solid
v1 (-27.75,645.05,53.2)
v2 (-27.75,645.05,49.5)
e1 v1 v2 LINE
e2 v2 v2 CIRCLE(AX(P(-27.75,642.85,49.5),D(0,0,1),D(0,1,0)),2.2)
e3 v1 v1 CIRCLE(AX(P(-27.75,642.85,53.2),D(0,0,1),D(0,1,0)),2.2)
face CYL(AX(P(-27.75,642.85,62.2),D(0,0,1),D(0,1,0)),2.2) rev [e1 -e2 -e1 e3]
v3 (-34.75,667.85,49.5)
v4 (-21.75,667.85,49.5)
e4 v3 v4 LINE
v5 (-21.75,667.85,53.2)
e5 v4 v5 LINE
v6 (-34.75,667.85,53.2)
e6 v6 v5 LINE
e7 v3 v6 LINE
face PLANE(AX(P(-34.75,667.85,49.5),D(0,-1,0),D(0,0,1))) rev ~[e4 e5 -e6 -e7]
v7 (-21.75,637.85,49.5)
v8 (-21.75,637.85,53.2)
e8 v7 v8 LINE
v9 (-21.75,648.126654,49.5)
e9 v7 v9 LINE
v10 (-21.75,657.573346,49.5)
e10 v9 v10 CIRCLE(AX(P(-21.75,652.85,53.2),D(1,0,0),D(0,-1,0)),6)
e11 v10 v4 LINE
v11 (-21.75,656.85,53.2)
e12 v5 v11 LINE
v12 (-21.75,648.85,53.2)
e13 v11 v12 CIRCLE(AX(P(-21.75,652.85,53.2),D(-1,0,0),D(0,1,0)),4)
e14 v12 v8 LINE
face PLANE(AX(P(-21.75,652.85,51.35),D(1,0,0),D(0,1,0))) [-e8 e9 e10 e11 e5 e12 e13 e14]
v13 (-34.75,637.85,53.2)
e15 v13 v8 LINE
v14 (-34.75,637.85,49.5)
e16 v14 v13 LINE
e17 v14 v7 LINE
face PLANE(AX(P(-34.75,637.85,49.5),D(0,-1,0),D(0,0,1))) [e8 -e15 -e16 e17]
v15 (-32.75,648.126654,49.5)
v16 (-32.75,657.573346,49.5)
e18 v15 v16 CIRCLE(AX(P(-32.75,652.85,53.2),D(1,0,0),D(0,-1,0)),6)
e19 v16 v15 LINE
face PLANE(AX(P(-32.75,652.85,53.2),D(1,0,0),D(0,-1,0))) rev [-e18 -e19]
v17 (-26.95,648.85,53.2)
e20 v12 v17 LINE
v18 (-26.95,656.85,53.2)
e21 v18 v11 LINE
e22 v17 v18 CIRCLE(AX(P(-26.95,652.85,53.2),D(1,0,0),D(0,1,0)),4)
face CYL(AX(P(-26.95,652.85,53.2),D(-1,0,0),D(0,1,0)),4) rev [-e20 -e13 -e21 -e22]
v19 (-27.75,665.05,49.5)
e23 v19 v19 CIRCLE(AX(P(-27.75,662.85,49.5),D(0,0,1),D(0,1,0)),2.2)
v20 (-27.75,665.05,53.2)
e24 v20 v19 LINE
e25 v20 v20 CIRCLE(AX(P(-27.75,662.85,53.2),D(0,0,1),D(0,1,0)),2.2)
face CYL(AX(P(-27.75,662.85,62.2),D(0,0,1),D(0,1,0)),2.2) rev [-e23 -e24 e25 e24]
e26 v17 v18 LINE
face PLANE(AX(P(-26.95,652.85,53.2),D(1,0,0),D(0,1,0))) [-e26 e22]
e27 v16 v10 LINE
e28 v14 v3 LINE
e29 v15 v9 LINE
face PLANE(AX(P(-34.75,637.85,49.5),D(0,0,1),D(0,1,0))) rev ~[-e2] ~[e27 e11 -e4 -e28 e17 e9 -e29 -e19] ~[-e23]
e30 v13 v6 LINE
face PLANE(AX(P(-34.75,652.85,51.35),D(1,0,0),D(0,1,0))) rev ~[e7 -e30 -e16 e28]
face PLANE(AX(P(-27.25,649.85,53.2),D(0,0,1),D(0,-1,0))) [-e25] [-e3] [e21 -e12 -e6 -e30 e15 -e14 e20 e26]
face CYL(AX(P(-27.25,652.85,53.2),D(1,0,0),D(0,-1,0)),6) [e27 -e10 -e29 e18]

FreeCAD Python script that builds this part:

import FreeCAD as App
import Part
import Sketcher
Q = App.Units.Quantity

doc = App.newDocument("Part")
params = doc.addObject("Spreadsheet::Sheet", "Params")
for row, (alias, value) in enumerate([
    ("sketch1_diameter", "4.4 mm"),
    ("pad1_length", "20 mm"),
    ("sketch2_diameter", "4.4 mm"),
    ("pad2_length", "20 mm"),
    ("sketch3_diameter", "8 mm"),
    ("pad3_length", "6.5 mm"),
    ("sketch4_width", "6 mm"),
    ("sketch4_height", "11 mm"),
    ("revolution_angle", "180 deg"),
    ("sketch5_width", "30 mm"),
    ("sketch5_height", "3.7 mm"),
    ("pad4_length", "13 mm"),
], start=1):
    params.set(f"A{row}", alias)
    params.set(f"B{row}", "=" + value)
    params.setAlias(f"B{row}", alias)

body = doc.addObject("PartDesign::Body", "Body")

# Sketch on XZ plane
sketch1 = doc.addObject("Sketcher::SketchObject", "Sketch")
body.addObject(sketch1)
sketch1.AttachmentSupport = (doc.XZ_Plane, [""])
sketch1.MapMode = "FlatFace"
sketch1.AttachmentOffset = App.Placement(App.Vector(0, 0, -9), App.Rotation())
sketch1.addGeometry(Part.Circle(App.Vector(-10, 5, 0), App.Vector(0, 0, 1), 2.2), False)
sketch1.addConstraint(Sketcher.Constraint("Diameter", 0, Q("4.4 mm")))
sketch1.addConstraint(Sketcher.Constraint("DistanceX", 0, 3, -1, 1, Q("10 mm")))
sketch1.addConstraint(Sketcher.Constraint("DistanceY", -1, 1, 0, 3, Q("5 mm")))
sketch1.setExpression("Constraints[0]", "Params.sketch1_diameter")
pad1 = doc.addObject("PartDesign::Pad", "Pad")
body.addObject(pad1)
pad1.Profile = sketch1
pad1.setExpression("Length", "Params.pad1_length")
body2 = doc.addObject("PartDesign::Body", "Body001")

# Sketch on XZ plane
sketch2 = doc.addObject("Sketcher::SketchObject", "Sketch001")
body2.addObject(sketch2)
sketch2.AttachmentSupport = (doc.getObject("XZ_Plane001"), [""])
sketch2.MapMode = "FlatFace"
sketch2.AttachmentOffset = App.Placement(App.Vector(0, 0, -9), App.Rotation())
sketch2.addGeometry(Part.Circle(App.Vector(10, 5, 0), App.Vector(0, 0, 1), 2.2), False)
sketch2.addConstraint(Sketcher.Constraint("Diameter", 0, Q("4.4 mm")))
sketch2.addConstraint(Sketcher.Constraint("DistanceX", -1, 1, 0, 3, Q("10 mm")))
sketch2.addConstraint(Sketcher.Constraint("DistanceY", -1, 1, 0, 3, Q("5 mm")))
sketch2.setExpression("Constraints[0]", "Params.sketch2_diameter")
pad2 = doc.addObject("PartDesign::Pad", "Pad001")
body2.addObject(pad2)
pad2.Profile = sketch2
pad2.setExpression("Length", "Params.pad2_length")
body3 = doc.addObject("PartDesign::Body", "Body002")

# Sketch on XY plane
sketch3 = doc.addObject("Sketcher::SketchObject", "Sketch002")
body3.addObject(sketch3)
sketch3.AttachmentSupport = (doc.getObject("XY_Plane002"), [""])
sketch3.MapMode = "FlatFace"
sketch3.AttachmentOffset = App.Placement(App.Vector(0, 0, 5.8), App.Rotation())
sketch3.addGeometry(Part.Circle(App.Vector(0, 0, 0), App.Vector(0, 0, 1), 4), False)
sketch3.addConstraint(Sketcher.Constraint("Coincident", 0, 3, -1, 1))
sketch3.addConstraint(Sketcher.Constraint("Diameter", 0, Q("8 mm")))
sketch3.setExpression("Constraints[1]", "Params.sketch3_diameter")
pad3 = doc.addObject("PartDesign::Pad", "Pad002")
body3.addObject(pad3)
pad3.Profile = sketch3
pad3.setExpression("Length", "Params.pad3_length")
body4 = doc.addObject("PartDesign::Body", "Body003")

# Sketch on XZ plane
sketch4 = doc.addObject("Sketcher::SketchObject", "Sketch003")
body4.addObject(sketch4)
sketch4.AttachmentSupport = (doc.getObject("XZ_Plane003"), [""])
sketch4.MapMode = "FlatFace"
sketch4.addGeometry(Part.LineSegment(App.Vector(0, 11, 0), App.Vector(0, 0, 0)), False)
sketch4.addGeometry(Part.LineSegment(App.Vector(0, 0, 0), App.Vector(-6, 0, 0)), False)
sketch4.addGeometry(Part.LineSegment(App.Vector(-6, 0, 0), App.Vector(-6, 11, 0)), False)
sketch4.addGeometry(Part.LineSegment(App.Vector(-6, 11, 0), App.Vector(0, 11, 0)), False)
sketch4.addConstraint(Sketcher.Constraint("Coincident", 0, 2, 1, 1))
sketch4.addConstraint(Sketcher.Constraint("Coincident", 1, 2, 2, 1))
sketch4.addConstraint(Sketcher.Constraint("Coincident", 2, 2, 3, 1))
sketch4.addConstraint(Sketcher.Constraint("Coincident", 3, 2, 0, 1))
sketch4.addConstraint(Sketcher.Constraint("Vertical", 0))
sketch4.addConstraint(Sketcher.Constraint("Horizontal", 1))
sketch4.addConstraint(Sketcher.Constraint("Vertical", 2))
sketch4.addConstraint(Sketcher.Constraint("Horizontal", 3))
sketch4.addConstraint(Sketcher.Constraint("Coincident", 0, 2, -1, 1))
sketch4.addConstraint(Sketcher.Constraint("DistanceX", 1, 2, 1, 1, Q("6 mm")))
sketch4.addConstraint(Sketcher.Constraint("DistanceY", 0, 2, 0, 1, Q("11 mm")))
sketch4.setExpression("Constraints[9]", "Params.sketch4_width")
sketch4.setExpression("Constraints[10]", "Params.sketch4_height")
revolution = doc.addObject("PartDesign::Revolution", "Revolution")
body4.addObject(revolution)
revolution.Profile = sketch4
revolution.ReferenceAxis = (sketch4, ["V_Axis"])
revolution.setExpression("Angle", "Params.revolution_angle")
body5 = doc.addObject("PartDesign::Body", "Body004")

# Sketch on XY plane
sketch5 = doc.addObject("Sketcher::SketchObject", "Sketch004")
body5.addObject(sketch5)
sketch5.AttachmentSupport = (doc.getObject("XY_Plane004"), [""])
sketch5.MapMode = "FlatFace"
sketch5.AttachmentOffset = App.Placement(App.Vector(0, 0, -2), App.Rotation())
sketch5.addGeometry(Part.LineSegment(App.Vector(-15, 0, 0), App.Vector(-15, -3.7, 0)), False)
sketch5.addGeometry(Part.LineSegment(App.Vector(-15, -3.7, 0), App.Vector(15, -3.7, 0)), False)
sketch5.addGeometry(Part.LineSegment(App.Vector(15, -3.7, 0), App.Vector(15, 0, 0)), False)
sketch5.addGeometry(Part.LineSegment(App.Vector(15, 0, 0), App.Vector(-15, 0, 0)), False)
sketch5.addConstraint(Sketcher.Constraint("Coincident", 0, 2, 1, 1))
sketch5.addConstraint(Sketcher.Constraint("Coincident", 1, 2, 2, 1))
sketch5.addConstraint(Sketcher.Constraint("Coincident", 2, 2, 3, 1))
sketch5.addConstraint(Sketcher.Constraint("Coincident", 3, 2, 0, 1))
sketch5.addConstraint(Sketcher.Constraint("Vertical", 0))
sketch5.addConstraint(Sketcher.Constraint("Horizontal", 1))
sketch5.addConstraint(Sketcher.Constraint("Vertical", 2))
sketch5.addConstraint(Sketcher.Constraint("Horizontal", 3))
sketch5.addConstraint(Sketcher.Constraint("Symmetric", 2, 2, 3, 2, -1, 1))
sketch5.addConstraint(Sketcher.Constraint("DistanceX", 1, 1, 1, 2, Q("30 mm")))
sketch5.addConstraint(Sketcher.Constraint("DistanceY", 0, 2, 0, 1, Q("3.7 mm")))
sketch5.setExpression("Constraints[9]", "Params.sketch5_width")
sketch5.setExpression("Constraints[10]", "Params.sketch5_height")
pad4 = doc.addObject("PartDesign::Pad", "Pad003")
body5.addObject(pad4)
pad4.Profile = sketch5
pad4.setExpression("Length", "Params.pad4_length")
doc.recompute()

boolean = doc.addObject("PartDesign::Boolean", "Boolean")
body5.addObject(boolean)
boolean.Type = "Fuse"
boolean.addObjects([body4])
doc.recompute()

boolean2 = doc.addObject("PartDesign::Boolean", "Boolean001")
body5.addObject(boolean2)
boolean2.Type = "Cut"
boolean2.addObjects([body3])
doc.recompute()

boolean3 = doc.addObject("PartDesign::Boolean", "Boolean002")
body5.addObject(boolean3)
boolean3.Type = "Cut"
boolean3.addObjects([body2])
doc.recompute()

boolean4 = doc.addObject("PartDesign::Boolean", "Boolean003")
body5.addObject(boolean4)
boolean4.Type = "Cut"
boolean4.addObjects([body])
body6 = doc.addObject("PartDesign::Body", "Body005")
doc.recompute()

body5.Placement = App.Placement(App.Vector(0, 0, 0), App.Rotation(App.Vector(1, 0, 0), 90))
boolean5 = doc.addObject("PartDesign::Boolean", "Boolean004")
body6.addObject(boolean5)
boolean5.Type = "Fuse"
boolean5.addObjects([body5])
body7 = doc.addObject("PartDesign::Body", "Body006")
doc.recompute()

body6.Placement = App.Placement(App.Vector(-32.75, 652.85, 53.2), App.Rotation(App.Vector(0, 0, 1), 90))
boolean6 = doc.addObject("PartDesign::Boolean", "Boolean005")
body7.addObject(boolean6)
boolean6.Type = "Fuse"
boolean6.addObjects([body6])

doc.recompute()
